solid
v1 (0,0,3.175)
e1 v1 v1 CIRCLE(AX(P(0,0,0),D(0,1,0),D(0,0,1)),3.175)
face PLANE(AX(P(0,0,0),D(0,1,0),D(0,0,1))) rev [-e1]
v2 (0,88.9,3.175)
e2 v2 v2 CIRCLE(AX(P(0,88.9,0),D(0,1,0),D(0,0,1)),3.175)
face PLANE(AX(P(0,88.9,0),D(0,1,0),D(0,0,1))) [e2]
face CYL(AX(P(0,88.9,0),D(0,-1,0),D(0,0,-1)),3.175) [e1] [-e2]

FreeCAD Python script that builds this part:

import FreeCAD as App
import Part
import Sketcher

V = App.Vector
Q = App.Units.Quantity

doc = App.newDocument("Part")
params = doc.addObject("Spreadsheet::Sheet", "Params")
for row, (alias, value) in enumerate([
    ("sketch1_diameter", "0.25 in"),
    ("pad1_length", "3.5 in"),
], start=1):
    params.set(f"A{row}", alias)
    params.set(f"B{row}", "=" + value)
    params.setAlias(f"B{row}", alias)

body = doc.addObject("PartDesign::Body", "Body")

# Sketch on XZ plane
sketch1 = body.newObject("Sketcher::SketchObject", "Sketch")
sketch1.AttachmentSupport = (doc.getObject("XZ_Plane"), [""])
sketch1.MapMode = "FlatFace"
sketch1.addGeometry(Part.Circle(V(0, 0, 0), V(0, 0, 1), 3.2), False)
sketch1.addConstraint([
    Sketcher.Constraint("Coincident", 0, 3, -1, 1),
    Sketcher.Constraint("Diameter", 0, Q("0.25 in")),
])
sketch1.setExpression("Constraints[1]", "Params.sketch1_diameter")
pad1 = body.newObject("PartDesign::Pad", "Pad")
pad1.Profile = sketch1
pad1.setExpression("Length", "Params.pad1_length")
pad1.Reversed = True

doc.recompute()
